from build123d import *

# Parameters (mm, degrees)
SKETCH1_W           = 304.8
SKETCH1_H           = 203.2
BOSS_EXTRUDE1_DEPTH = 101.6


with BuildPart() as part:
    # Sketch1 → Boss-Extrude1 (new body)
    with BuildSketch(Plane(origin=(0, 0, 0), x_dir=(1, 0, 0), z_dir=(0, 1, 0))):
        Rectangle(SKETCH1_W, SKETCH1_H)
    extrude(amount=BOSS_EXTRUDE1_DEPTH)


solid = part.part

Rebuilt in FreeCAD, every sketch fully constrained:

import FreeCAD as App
import Part
import Sketcher

V = App.Vector
Q = App.Units.Quantity

doc = App.newDocument("Part")
params = doc.addObject("Spreadsheet::Sheet", "Params")
for row, (alias, value) in enumerate([
    ("sketch1_width", "12 in"),
    ("sketch1_height", "8 in"),
    ("pad1_length", "4 in"),
], start=1):
    params.set(f"A{row}", alias)
    params.set(f"B{row}", "=" + value)
    params.setAlias(f"B{row}", alias)

body = doc.addObject("PartDesign::Body", "Body")

# Sketch on XZ plane
sketch1 = doc.addObject("Sketcher::SketchObject", "Sketch")
body.addObject(sketch1)
sketch1.AttachmentSupport = (doc.XZ_Plane, [""])
sketch1.MapMode = "FlatFace"
sketch1.addGeometry(Part.LineSegment(V(-152, -102, 0), V(-152, 102, 0)), False)
sketch1.addGeometry(Part.LineSegment(V(-152, 102, 0), V(152, 102, 0)), False)
sketch1.addGeometry(Part.LineSegment(V(152, 102, 0), V(152, -102, 0)), False)
sketch1.addGeometry(Part.LineSegment(V(152, -102, 0), V(-152, -102, 0)), False)
sketch1.addConstraint(Sketcher.Constraint("Coincident", 0, 2, 1, 1))
sketch1.addConstraint(Sketcher.Constraint("Coincident", 1, 2, 2, 1))
sketch1.addConstraint(Sketcher.Constraint("Coincident", 2, 2, 3, 1))
sketch1.addConstraint(Sketcher.Constraint("Coincident", 3, 2, 0, 1))
sketch1.addConstraint(Sketcher.Constraint("Vertical", 0))
sketch1.addConstraint(Sketcher.Constraint("Horizontal", 1))
sketch1.addConstraint(Sketcher.Constraint("Vertical", 2))
sketch1.addConstraint(Sketcher.Constraint("Horizontal", 3))
sketch1.addConstraint(Sketcher.Constraint("Symmetric", 0, 2, 2, 2, -1, 1))
sketch1.addConstraint(Sketcher.Constraint("DistanceX", 1, 1, 1, 2, Q("12 in")))
sketch1.addConstraint(Sketcher.Constraint("DistanceY", 0, 1, 0, 2, Q("8 in")))
sketch1.setExpression("Constraints[9]", "Params.sketch1_width")
sketch1.setExpression("Constraints[10]", "Params.sketch1_height")
pad1 = doc.addObject("PartDesign::Pad", "Pad")
body.addObject(pad1)
pad1.Profile = sketch1
pad1.setExpression("Length", "Params.pad1_length")
pad1.Reversed = True

doc.recompute()
